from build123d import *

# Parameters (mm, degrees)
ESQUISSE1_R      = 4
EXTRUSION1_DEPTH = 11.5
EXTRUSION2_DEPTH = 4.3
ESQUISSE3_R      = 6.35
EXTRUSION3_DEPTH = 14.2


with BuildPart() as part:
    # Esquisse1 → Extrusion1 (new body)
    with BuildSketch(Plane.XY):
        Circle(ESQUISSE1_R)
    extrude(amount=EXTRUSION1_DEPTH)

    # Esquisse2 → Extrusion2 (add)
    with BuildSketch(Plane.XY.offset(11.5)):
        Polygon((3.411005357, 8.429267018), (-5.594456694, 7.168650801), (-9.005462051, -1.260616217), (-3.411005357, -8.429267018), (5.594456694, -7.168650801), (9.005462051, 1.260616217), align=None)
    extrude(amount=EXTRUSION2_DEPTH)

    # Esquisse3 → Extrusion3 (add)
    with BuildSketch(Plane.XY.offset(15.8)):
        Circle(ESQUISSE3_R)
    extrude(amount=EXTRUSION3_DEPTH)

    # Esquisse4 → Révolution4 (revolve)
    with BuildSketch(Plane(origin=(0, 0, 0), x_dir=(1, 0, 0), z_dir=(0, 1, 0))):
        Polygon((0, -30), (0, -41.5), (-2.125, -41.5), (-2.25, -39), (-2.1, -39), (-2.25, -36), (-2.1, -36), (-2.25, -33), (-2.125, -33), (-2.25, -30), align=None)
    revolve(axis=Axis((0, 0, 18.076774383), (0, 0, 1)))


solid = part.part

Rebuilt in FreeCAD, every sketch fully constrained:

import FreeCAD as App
import Part
import Sketcher
Q = App.Units.Quantity

doc = App.newDocument("Part")
params = doc.addObject("Spreadsheet::Sheet", "Params")
for row, (alias, value) in enumerate([
    ("sketch1_diameter", "8 mm"),
    ("pad1_length", "11.5 mm"),
    ("pad2_length", "4.3 mm"),
    ("sketch3_diameter", "12.7 mm"),
    ("pad3_length", "14.2 mm"),
    ("sketch4_height", "11.5 mm"),
    ("sketch4_width", "2.25 mm"),
    ("sketch4_width2", "0.15 mm"),
    ("revolution_angle", "360 deg"),
], start=1):
    params.set(f"A{row}", alias)
    params.set(f"B{row}", "=" + value)
    params.setAlias(f"B{row}", alias)

body = doc.addObject("PartDesign::Body", "Body")

# Sketch on XY plane
sketch1 = body.newObject("Sketcher::SketchObject", "Sketch")
sketch1.AttachmentSupport = (doc.getObject("XY_Plane"), [""])
sketch1.MapMode = "FlatFace"
sketch1.addGeometry(Part.Circle(App.Vector(0, 0, 0), App.Vector(0, 0, 1), 4), False)
sketch1.addConstraint([
    Sketcher.Constraint("Coincident", 0, 3, -1, 1),
    Sketcher.Constraint("Diameter", 0, Q("8 mm")),
])
sketch1.setExpression("Constraints[1]", "Params.sketch1_diameter")
pad1 = body.newObject("PartDesign::Pad", "Pad")
pad1.Profile = sketch1
pad1.setExpression("Length", "Params.pad1_length")

# Sketch on XY plane
sketch2 = body.newObject("Sketcher::SketchObject", "Sketch001")
sketch2.AttachmentSupport = (doc.getObject("XY_Plane"), [""])
sketch2.MapMode = "FlatFace"
sketch2.AttachmentOffset = App.Placement(App.Vector(0, 0, 11.5), App.Rotation())
sketch2.addGeometry([
    Part.LineSegment(App.Vector(3.411005, 8.429267, 0), App.Vector(-5.594457, 7.168651, 0)),  # 0
    Part.LineSegment(App.Vector(-5.594457, 7.168651, 0), App.Vector(-9.005462, -1.260616, 0)),  # 1
    Part.LineSegment(App.Vector(-9.005462, -1.260616, 0), App.Vector(-3.411005, -8.429267, 0)),  # 2
    Part.LineSegment(App.Vector(-3.411005, -8.429267, 0), App.Vector(5.594457, -7.168651, 0)),  # 3
    Part.LineSegment(App.Vector(5.594457, -7.168651, 0), App.Vector(9.005462, 1.260616, 0)),  # 4
    Part.LineSegment(App.Vector(9.005462, 1.260616, 0), App.Vector(3.411005, 8.429267, 0)),  # 5
], False)
sketch2.addConstraint([
    Sketcher.Constraint("Coincident", 0, 2, 1, 1),
    Sketcher.Constraint("Coincident", 1, 2, 2, 1),
    Sketcher.Constraint("Coincident", 2, 2, 3, 1),
    Sketcher.Constraint("Coincident", 3, 2, 4, 1),
    Sketcher.Constraint("Coincident", 4, 2, 5, 1),
    Sketcher.Constraint("Coincident", 5, 2, 0, 1),
    Sketcher.Constraint("Symmetric", 0, 2, 3, 2, -1, 1),
    Sketcher.Constraint("Symmetric", 1, 2, 4, 2, -1, 1),
    Sketcher.Constraint("Symmetric", 2, 2, 5, 2, -1, 1),
    Sketcher.Constraint("Equal", 0, 1),
    Sketcher.Constraint("Equal", 1, 2),
    Sketcher.Constraint("DistanceY", 3, 2, 0, 2, Q("14.337302 mm")),
    Sketcher.Constraint("DistanceY", 2, 2, 1, 2, Q("7.168651 mm")),
    Sketcher.Constraint("DistanceX", 0, 2, 2, 2, Q("2.183451 mm")),
    Sketcher.Constraint("DistanceX", 1, 2, 3, 2, Q("14.599919 mm")),
])
pad2 = body.newObject("PartDesign::Pad", "Pad001")
pad2.Profile = sketch2
pad2.setExpression("Length", "Params.pad2_length")

# Sketch on XY plane
sketch3 = body.newObject("Sketcher::SketchObject", "Sketch002")
sketch3.AttachmentSupport = (doc.getObject("XY_Plane"), [""])
sketch3.MapMode = "FlatFace"
sketch3.AttachmentOffset = App.Placement(App.Vector(0, 0, 15.8), App.Rotation())
sketch3.addGeometry(Part.Circle(App.Vector(0, 0, 0), App.Vector(0, 0, 1), 6.35), False)
sketch3.addConstraint([
    Sketcher.Constraint("Coincident", 0, 3, -1, 1),
    Sketcher.Constraint("Diameter", 0, Q("12.7 mm")),
])
sketch3.setExpression("Constraints[1]", "Params.sketch3_diameter")
pad3 = body.newObject("PartDesign::Pad", "Pad002")
pad3.Profile = sketch3
pad3.setExpression("Length", "Params.pad3_length")

# Sketch on XZ plane
sketch4 = body.newObject("Sketcher::SketchObject", "Sketch003")
sketch4.AttachmentSupport = (doc.getObject("XZ_Plane"), [""])
sketch4.MapMode = "FlatFace"
sketch4.addGeometry([
    Part.LineSegment(App.Vector(0, 41.5, 0), App.Vector(0, 30, 0)),  # 0
    Part.LineSegment(App.Vector(0, 30, 0), App.Vector(-2.25, 30, 0)),  # 1
    Part.LineSegment(App.Vector(-2.25, 30, 0), App.Vector(-2.125, 33, 0)),  # 2
    Part.LineSegment(App.Vector(-2.125, 33, 0), App.Vector(-2.25, 33, 0)),  # 3
    Part.LineSegment(App.Vector(-2.25, 33, 0), App.Vector(-2.1, 36, 0)),  # 4
    Part.LineSegment(App.Vector(-2.1, 36, 0), App.Vector(-2.25, 36, 0)),  # 5
    Part.LineSegment(App.Vector(-2.25, 36, 0), App.Vector(-2.1, 39, 0)),  # 6
    Part.LineSegment(App.Vector(-2.1, 39, 0), App.Vector(-2.25, 39, 0)),  # 7
    Part.LineSegment(App.Vector(-2.25, 39, 0), App.Vector(-2.125, 41.5, 0)),  # 8
    Part.LineSegment(App.Vector(-2.125, 41.5, 0), App.Vector(0, 41.5, 0)),  # 9
], False)
sketch4.addConstraint([
    Sketcher.Constraint("Coincident", 0, 2, 1, 1),
    Sketcher.Constraint("Coincident", 1, 2, 2, 1),
    Sketcher.Constraint("Coincident", 2, 2, 3, 1),
    Sketcher.Constraint("Coincident", 3, 2, 4, 1),
    Sketcher.Constraint("Coincident", 4, 2, 5, 1),
    Sketcher.Constraint("Coincident", 5, 2, 6, 1),
    Sketcher.Constraint("Coincident", 6, 2, 7, 1),
    Sketcher.Constraint("Coincident", 7, 2, 8, 1),
    Sketcher.Constraint("Coincident", 8, 2, 9, 1),
    Sketcher.Constraint("Coincident", 9, 2, 0, 1),
    Sketcher.Constraint("Vertical", 0),
    Sketcher.Constraint("Horizontal", 1),
    Sketcher.Constraint("Horizontal", 3),
    Sketcher.Constraint("Horizontal", 5),
    Sketcher.Constraint("Horizontal", 7),
    Sketcher.Constraint("Horizontal", 9),
    Sketcher.Constraint("PointOnObject", 0, 2, -2),
    Sketcher.Constraint("Parallel", 4, 6),
    Sketcher.Constraint("Parallel", 6, 8),
    Sketcher.Constraint("Vertical", 1, 2, 3, 2),
    Sketcher.Constraint("Vertical", 3, 2, 5, 2),
    Sketcher.Constraint("Vertical", 4, 2, 6, 2),
    Sketcher.Constraint("Vertical", 5, 2, 7, 2),
    Sketcher.Constraint("Vertical", 2, 2, 8, 2),
    Sketcher.Constraint("DistanceY", 0, 2, 0, 1, Q("11.5 mm")),
    Sketcher.Constraint("DistanceY", -1, 1, 0, 2, Q("30 mm")),
    Sketcher.Constraint("DistanceY", -1, 1, 2, 2, Q("33 mm")),
    Sketcher.Constraint("DistanceY", -1, 1, 4, 2, Q("36 mm")),
    Sketcher.Constraint("DistanceX", 1, 2, 1, 1, Q("2.25 mm")),
    Sketcher.Constraint("DistanceX", 5, 2, 5, 1, Q("0.15 mm")),
])
sketch4.setExpression("Constraints[24]", "Params.sketch4_height")
sketch4.setExpression("Constraints[28]", "Params.sketch4_width")
sketch4.setExpression("Constraints[29]", "Params.sketch4_width2")
revolution = body.newObject("PartDesign::Revolution", "Revolution")
revolution.Profile = sketch4
revolution.ReferenceAxis = (sketch4, ["V_Axis"])
revolution.setExpression("Angle", "Params.revolution_angle")

doc.recompute()
